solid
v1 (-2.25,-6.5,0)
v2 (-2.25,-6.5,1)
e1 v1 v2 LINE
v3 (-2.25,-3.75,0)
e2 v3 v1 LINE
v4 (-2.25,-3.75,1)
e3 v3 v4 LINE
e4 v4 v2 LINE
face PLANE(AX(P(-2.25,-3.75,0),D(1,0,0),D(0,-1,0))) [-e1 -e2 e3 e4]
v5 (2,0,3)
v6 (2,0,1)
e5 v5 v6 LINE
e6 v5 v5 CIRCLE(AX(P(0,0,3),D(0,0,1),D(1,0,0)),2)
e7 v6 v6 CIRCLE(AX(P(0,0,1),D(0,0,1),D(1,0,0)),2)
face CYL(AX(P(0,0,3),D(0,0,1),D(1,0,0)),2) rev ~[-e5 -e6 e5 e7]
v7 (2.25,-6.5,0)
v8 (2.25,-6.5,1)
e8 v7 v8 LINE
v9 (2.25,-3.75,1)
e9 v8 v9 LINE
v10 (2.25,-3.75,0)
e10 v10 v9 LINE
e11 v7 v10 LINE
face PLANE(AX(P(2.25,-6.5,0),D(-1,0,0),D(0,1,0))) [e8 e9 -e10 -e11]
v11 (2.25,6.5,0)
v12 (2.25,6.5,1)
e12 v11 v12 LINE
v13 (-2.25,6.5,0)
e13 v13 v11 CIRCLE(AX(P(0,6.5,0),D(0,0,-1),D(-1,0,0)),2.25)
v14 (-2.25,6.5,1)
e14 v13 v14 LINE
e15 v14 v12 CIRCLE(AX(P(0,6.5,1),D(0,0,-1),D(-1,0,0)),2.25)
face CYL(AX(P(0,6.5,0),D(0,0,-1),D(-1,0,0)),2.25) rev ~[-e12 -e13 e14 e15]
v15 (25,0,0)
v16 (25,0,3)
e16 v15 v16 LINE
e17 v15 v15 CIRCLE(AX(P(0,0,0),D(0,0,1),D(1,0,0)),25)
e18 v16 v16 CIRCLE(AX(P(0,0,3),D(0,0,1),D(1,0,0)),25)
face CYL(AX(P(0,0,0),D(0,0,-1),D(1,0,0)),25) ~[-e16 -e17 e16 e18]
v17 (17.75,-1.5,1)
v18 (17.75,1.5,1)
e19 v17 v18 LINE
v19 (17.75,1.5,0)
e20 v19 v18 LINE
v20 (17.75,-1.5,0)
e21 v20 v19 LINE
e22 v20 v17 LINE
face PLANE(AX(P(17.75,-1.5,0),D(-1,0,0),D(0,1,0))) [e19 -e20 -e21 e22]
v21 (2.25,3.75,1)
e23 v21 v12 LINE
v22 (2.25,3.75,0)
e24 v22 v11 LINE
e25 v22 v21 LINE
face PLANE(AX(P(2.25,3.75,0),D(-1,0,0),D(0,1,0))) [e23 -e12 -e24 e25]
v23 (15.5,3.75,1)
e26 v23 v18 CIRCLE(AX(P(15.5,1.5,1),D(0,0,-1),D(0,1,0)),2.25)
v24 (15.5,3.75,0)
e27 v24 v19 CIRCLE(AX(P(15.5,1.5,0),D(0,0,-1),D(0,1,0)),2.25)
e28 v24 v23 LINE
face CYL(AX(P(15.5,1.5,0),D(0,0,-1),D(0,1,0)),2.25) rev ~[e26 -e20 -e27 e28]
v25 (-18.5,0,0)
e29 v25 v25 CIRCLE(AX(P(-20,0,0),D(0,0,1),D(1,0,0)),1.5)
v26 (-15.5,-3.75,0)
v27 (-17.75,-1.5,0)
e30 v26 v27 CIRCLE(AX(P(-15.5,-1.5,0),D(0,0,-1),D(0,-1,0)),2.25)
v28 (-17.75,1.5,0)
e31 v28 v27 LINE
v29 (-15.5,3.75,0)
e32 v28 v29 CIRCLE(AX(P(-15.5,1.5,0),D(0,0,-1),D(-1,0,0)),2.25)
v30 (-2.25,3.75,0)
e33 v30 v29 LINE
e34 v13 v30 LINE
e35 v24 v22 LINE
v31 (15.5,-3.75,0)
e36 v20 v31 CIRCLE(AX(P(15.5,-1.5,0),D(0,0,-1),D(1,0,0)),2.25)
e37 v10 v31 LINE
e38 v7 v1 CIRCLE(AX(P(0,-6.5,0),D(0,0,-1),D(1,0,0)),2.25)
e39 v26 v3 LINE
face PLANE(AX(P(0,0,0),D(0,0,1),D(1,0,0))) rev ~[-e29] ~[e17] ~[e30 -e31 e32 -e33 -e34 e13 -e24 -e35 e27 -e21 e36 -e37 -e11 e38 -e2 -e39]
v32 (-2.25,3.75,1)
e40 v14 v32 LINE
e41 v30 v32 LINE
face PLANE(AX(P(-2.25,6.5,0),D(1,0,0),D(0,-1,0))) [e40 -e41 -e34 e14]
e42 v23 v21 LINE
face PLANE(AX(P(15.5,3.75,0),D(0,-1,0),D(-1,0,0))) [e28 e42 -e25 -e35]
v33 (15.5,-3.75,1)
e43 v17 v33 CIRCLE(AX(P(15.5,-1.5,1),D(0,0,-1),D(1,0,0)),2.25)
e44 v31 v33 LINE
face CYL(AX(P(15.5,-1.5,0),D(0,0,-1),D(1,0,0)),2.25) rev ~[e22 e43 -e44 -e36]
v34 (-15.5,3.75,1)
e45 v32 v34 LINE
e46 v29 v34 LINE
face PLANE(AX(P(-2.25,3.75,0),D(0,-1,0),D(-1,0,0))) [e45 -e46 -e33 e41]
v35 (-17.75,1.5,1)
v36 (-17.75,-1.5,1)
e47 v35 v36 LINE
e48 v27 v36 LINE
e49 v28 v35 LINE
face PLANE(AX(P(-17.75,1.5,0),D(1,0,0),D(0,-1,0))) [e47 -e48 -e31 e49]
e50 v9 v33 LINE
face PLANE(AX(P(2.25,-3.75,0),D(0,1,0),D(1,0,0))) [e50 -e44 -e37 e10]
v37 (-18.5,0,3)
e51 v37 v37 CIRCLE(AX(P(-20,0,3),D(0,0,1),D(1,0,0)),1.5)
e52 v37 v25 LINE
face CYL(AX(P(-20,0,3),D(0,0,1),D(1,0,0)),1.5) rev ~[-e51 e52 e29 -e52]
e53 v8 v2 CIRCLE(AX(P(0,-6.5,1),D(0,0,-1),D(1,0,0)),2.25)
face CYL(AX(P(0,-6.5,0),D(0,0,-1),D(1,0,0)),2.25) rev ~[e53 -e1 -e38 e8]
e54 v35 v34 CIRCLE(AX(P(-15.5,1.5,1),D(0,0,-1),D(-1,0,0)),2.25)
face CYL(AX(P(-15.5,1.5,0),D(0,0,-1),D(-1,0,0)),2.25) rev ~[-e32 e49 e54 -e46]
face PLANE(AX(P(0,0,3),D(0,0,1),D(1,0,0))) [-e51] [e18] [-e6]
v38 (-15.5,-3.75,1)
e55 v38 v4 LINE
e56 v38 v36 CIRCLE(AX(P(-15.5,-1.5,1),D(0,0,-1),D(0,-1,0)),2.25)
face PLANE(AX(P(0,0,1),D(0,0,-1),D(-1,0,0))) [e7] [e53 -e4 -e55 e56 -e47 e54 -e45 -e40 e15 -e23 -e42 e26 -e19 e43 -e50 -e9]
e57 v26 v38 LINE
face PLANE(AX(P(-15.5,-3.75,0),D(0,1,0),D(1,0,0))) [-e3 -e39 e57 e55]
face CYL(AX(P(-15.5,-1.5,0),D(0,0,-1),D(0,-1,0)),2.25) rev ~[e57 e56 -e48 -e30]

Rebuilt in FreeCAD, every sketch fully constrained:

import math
import FreeCAD as App
import Part
import Sketcher
Q = App.Units.Quantity

doc = App.newDocument("Part")
params = doc.addObject("Spreadsheet::Sheet", "Params")
for row, (alias, value) in enumerate([
    ("sketch1_diameter", "50 mm"),
    ("pad1_length", "3 mm"),
    ("sketch2_diameter", "4 mm"),
    ("pocket1_length", "3 mm"),
    ("sketch3_diameter", "3 mm"),
    ("pocket2_length", "3 mm"),
    ("sketch4_height", "3 mm"),
    ("sketch4_radius", "2.25 mm"),
    ("pocket3_length", "1 mm"),
], start=1):
    params.set(f"A{row}", alias)
    params.set(f"B{row}", "=" + value)
    params.setAlias(f"B{row}", alias)

body = doc.addObject("PartDesign::Body", "Body")

sketch1 = doc.addObject("Sketcher::SketchObject", "Sketch")
body.addObject(sketch1)
sketch1.AttachmentSupport = (doc.XY_Plane, [""])
sketch1.MapMode = "FlatFace"
sketch1.addGeometry(Part.Circle(App.Vector(0, 0, 0), App.Vector(0, 0, 1), 25), False)
sketch1.addConstraint(Sketcher.Constraint("Coincident", 0, 3, -1, 1))
sketch1.addConstraint(Sketcher.Constraint("Diameter", 0, Q("50 mm")))
sketch1.setExpression("Constraints[1]", "Params.sketch1_diameter")
pad1 = doc.addObject("PartDesign::Pad", "Pad")
body.addObject(pad1)
pad1.Profile = sketch1
pad1.setExpression("Length", "Params.pad1_length")

sketch2 = doc.addObject("Sketcher::SketchObject", "Sketch001")
body.addObject(sketch2)
sketch2.AttachmentSupport = (doc.XY_Plane, [""])
sketch2.MapMode = "FlatFace"
sketch2.AttachmentOffset = App.Placement(App.Vector(0, 0, 3), App.Rotation())
sketch2.addGeometry(Part.Circle(App.Vector(0, 0, 0), App.Vector(0, 0, 1), 2), False)
sketch2.addConstraint(Sketcher.Constraint("Coincident", 0, 3, -1, 1))
sketch2.addConstraint(Sketcher.Constraint("Diameter", 0, Q("4 mm")))
sketch2.setExpression("Constraints[1]", "Params.sketch2_diameter")
pocket1 = doc.addObject("PartDesign::Pocket", "Pocket")
body.addObject(pocket1)
pocket1.Profile = sketch2
pocket1.setExpression("Length", "Params.pocket1_length")

sketch3 = doc.addObject("Sketcher::SketchObject", "Sketch002")
body.addObject(sketch3)
sketch3.AttachmentSupport = (doc.XY_Plane, [""])
sketch3.MapMode = "FlatFace"
sketch3.AttachmentOffset = App.Placement(App.Vector(0, 0, 3), App.Rotation())
sketch3.addGeometry(Part.Circle(App.Vector(-20, 0, 0), App.Vector(0, 0, 1), 1.5), False)
sketch3.addConstraint(Sketcher.Constraint("PointOnObject", 0, 3, -1))
sketch3.addConstraint(Sketcher.Constraint("Diameter", 0, Q("3 mm")))
sketch3.addConstraint(Sketcher.Constraint("DistanceX", 0, 3, -1, 1, Q("20 mm")))
sketch3.setExpression("Constraints[1]", "Params.sketch3_diameter")
pocket2 = doc.addObject("PartDesign::Pocket", "Pocket001")
body.addObject(pocket2)
pocket2.Profile = sketch3
pocket2.setExpression("Length", "Params.pocket2_length")

sketch4 = doc.addObject("Sketcher::SketchObject", "Sketch003")
body.addObject(sketch4)
sketch4.AttachmentSupport = (doc.XY_Plane, [""])
sketch4.MapMode = "FlatFace"
sketch4.addGeometry(Part.LineSegment(App.Vector(2.2, 6.5, 0), App.Vector(2.2, 3.8, 0)), False)
sketch4.addGeometry(Part.LineSegment(App.Vector(2.2, 3.8, 0), App.Vector(15.5, 3.8, 0)), False)
sketch4.addGeometry(Part.ArcOfCircle(Part.Circle(App.Vector(15.5, 1.5, 0), App.Vector(0, 0, 1), 2.2), math.radians(0), math.radians(90)), False)
sketch4.addGeometry(Part.LineSegment(App.Vector(17.8, 1.5, 0), App.Vector(17.8, -1.5, 0)), False)
sketch4.addGeometry(Part.ArcOfCircle(Part.Circle(App.Vector(15.5, -1.5, 0), App.Vector(0, 0, 1), 2.2), math.radians(-90), math.radians(0)), False)
sketch4.addGeometry(Part.LineSegment(App.Vector(15.5, -3.8, 0), App.Vector(2.2, -3.8, 0)), False)
sketch4.addGeometry(Part.LineSegment(App.Vector(2.2, -3.8, 0), App.Vector(2.2, -6.5, 0)), False)
sketch4.addGeometry(Part.ArcOfCircle(Part.Circle(App.Vector(0, -6.5, 0), App.Vector(0, 0, 1), 2.2), math.radians(180), math.radians(360)), False)
sketch4.addGeometry(Part.LineSegment(App.Vector(-2.2, -6.5, 0), App.Vector(-2.2, -3.8, 0)), False)
sketch4.addGeometry(Part.LineSegment(App.Vector(-2.2, -3.8, 0), App.Vector(-15.5, -3.8, 0)), False)
sketch4.addGeometry(Part.ArcOfCircle(Part.Circle(App.Vector(-15.5, -1.5, 0), App.Vector(0, 0, 1), 2.2), math.radians(180), math.radians(270)), False)
sketch4.addGeometry(Part.LineSegment(App.Vector(-17.8, -1.5, 0), App.Vector(-17.8, 1.5, 0)), False)
sketch4.addGeometry(Part.ArcOfCircle(Part.Circle(App.Vector(-15.5, 1.5, 0), App.Vector(0, 0, 1), 2.2), math.radians(90), math.radians(180)), False)
sketch4.addGeometry(Part.LineSegment(App.Vector(-15.5, 3.8, 0), App.Vector(-2.2, 3.8, 0)), False)
sketch4.addGeometry(Part.LineSegment(App.Vector(-2.2, 3.8, 0), App.Vector(-2.2, 6.5, 0)), False)
sketch4.addGeometry(Part.ArcOfCircle(Part.Circle(App.Vector(0, 6.5, 0), App.Vector(0, 0, 1), 2.2), math.radians(0), math.radians(180)), False)
sketch4.addConstraint(Sketcher.Constraint("Coincident", 0, 2, 1, 1))
sketch4.addConstraint(Sketcher.Constraint("Tangent", 1, 2, 2, 2))
sketch4.addConstraint(Sketcher.Constraint("Tangent", 2, 1, 3, 1))
sketch4.addConstraint(Sketcher.Constraint("Tangent", 3, 2, 4, 2))
sketch4.addConstraint(Sketcher.Constraint("Tangent", 4, 1, 5, 1))
sketch4.addConstraint(Sketcher.Constraint("Coincident", 5, 2, 6, 1))
sketch4.addConstraint(Sketcher.Constraint("Tangent", 6, 2, 7, 2))
sketch4.addConstraint(Sketcher.Constraint("Tangent", 7, 1, 8, 1))
sketch4.addConstraint(Sketcher.Constraint("Coincident", 8, 2, 9, 1))
sketch4.addConstraint(Sketcher.Constraint("Tangent", 9, 2, 10, 2))
sketch4.addConstraint(Sketcher.Constraint("Tangent", 10, 1, 11, 1))
sketch4.addConstraint(Sketcher.Constraint("Tangent", 11, 2, 12, 2))
sketch4.addConstraint(Sketcher.Constraint("Tangent", 12, 1, 13, 1))
sketch4.addConstraint(Sketcher.Constraint("Coincident", 13, 2, 14, 1))
sketch4.addConstraint(Sketcher.Constraint("Tangent", 14, 2, 15, 2))
sketch4.addConstraint(Sketcher.Constraint("Tangent", 15, 1, 0, 1))
sketch4.addConstraint(Sketcher.Constraint("Vertical", 0))
sketch4.addConstraint(Sketcher.Constraint("Horizontal", 1))
sketch4.addConstraint(Sketcher.Constraint("Vertical", 3))
sketch4.addConstraint(Sketcher.Constraint("Horizontal", 5))
sketch4.addConstraint(Sketcher.Constraint("Vertical", 6))
sketch4.addConstraint(Sketcher.Constraint("Vertical", 8))
sketch4.addConstraint(Sketcher.Constraint("Horizontal", 9))
sketch4.addConstraint(Sketcher.Constraint("Vertical", 11))
sketch4.addConstraint(Sketcher.Constraint("Horizontal", 13))
sketch4.addConstraint(Sketcher.Constraint("Vertical", 14))
sketch4.addConstraint(Sketcher.Constraint("Equal", 2, 4))
sketch4.addConstraint(Sketcher.Constraint("Equal", 4, 7))
sketch4.addConstraint(Sketcher.Constraint("Equal", 7, 10))
sketch4.addConstraint(Sketcher.Constraint("Equal", 10, 12))
sketch4.addConstraint(Sketcher.Constraint("Equal", 12, 15))
sketch4.addConstraint(Sketcher.Constraint("Symmetric", 2, 3, 10, 3, -1, 1))
sketch4.addConstraint(Sketcher.Constraint("Symmetric", 7, 3, 15, 3, -1, 1))
sketch4.addConstraint(Sketcher.Constraint("Symmetric", 5, 2, 8, 2, -2))
sketch4.addConstraint(Sketcher.Constraint("Horizontal", 2, 3, 12, 3))
sketch4.addConstraint(Sketcher.Constraint("DistanceY", 3, 2, 3, 1, Q("3 mm")))
sketch4.addConstraint(Sketcher.Constraint("Radius", 2, Q("2.25 mm")))
sketch4.addConstraint(Sketcher.Constraint("DistanceY", 7, 3, 4, 3, Q("5 mm")))
sketch4.addConstraint(Sketcher.Constraint("DistanceX", 10, 3, 4, 3, Q("31 mm")))
sketch4.setExpression("Constraints[35]", "Params.sketch4_height")
sketch4.setExpression("Constraints[36]", "Params.sketch4_radius")
pocket3 = doc.addObject("PartDesign::Pocket", "Pocket002")
body.addObject(pocket3)
pocket3.Profile = sketch4
pocket3.setExpression("Length", "Params.pocket3_length")
pocket3.Reversed = True

doc.recompute()
